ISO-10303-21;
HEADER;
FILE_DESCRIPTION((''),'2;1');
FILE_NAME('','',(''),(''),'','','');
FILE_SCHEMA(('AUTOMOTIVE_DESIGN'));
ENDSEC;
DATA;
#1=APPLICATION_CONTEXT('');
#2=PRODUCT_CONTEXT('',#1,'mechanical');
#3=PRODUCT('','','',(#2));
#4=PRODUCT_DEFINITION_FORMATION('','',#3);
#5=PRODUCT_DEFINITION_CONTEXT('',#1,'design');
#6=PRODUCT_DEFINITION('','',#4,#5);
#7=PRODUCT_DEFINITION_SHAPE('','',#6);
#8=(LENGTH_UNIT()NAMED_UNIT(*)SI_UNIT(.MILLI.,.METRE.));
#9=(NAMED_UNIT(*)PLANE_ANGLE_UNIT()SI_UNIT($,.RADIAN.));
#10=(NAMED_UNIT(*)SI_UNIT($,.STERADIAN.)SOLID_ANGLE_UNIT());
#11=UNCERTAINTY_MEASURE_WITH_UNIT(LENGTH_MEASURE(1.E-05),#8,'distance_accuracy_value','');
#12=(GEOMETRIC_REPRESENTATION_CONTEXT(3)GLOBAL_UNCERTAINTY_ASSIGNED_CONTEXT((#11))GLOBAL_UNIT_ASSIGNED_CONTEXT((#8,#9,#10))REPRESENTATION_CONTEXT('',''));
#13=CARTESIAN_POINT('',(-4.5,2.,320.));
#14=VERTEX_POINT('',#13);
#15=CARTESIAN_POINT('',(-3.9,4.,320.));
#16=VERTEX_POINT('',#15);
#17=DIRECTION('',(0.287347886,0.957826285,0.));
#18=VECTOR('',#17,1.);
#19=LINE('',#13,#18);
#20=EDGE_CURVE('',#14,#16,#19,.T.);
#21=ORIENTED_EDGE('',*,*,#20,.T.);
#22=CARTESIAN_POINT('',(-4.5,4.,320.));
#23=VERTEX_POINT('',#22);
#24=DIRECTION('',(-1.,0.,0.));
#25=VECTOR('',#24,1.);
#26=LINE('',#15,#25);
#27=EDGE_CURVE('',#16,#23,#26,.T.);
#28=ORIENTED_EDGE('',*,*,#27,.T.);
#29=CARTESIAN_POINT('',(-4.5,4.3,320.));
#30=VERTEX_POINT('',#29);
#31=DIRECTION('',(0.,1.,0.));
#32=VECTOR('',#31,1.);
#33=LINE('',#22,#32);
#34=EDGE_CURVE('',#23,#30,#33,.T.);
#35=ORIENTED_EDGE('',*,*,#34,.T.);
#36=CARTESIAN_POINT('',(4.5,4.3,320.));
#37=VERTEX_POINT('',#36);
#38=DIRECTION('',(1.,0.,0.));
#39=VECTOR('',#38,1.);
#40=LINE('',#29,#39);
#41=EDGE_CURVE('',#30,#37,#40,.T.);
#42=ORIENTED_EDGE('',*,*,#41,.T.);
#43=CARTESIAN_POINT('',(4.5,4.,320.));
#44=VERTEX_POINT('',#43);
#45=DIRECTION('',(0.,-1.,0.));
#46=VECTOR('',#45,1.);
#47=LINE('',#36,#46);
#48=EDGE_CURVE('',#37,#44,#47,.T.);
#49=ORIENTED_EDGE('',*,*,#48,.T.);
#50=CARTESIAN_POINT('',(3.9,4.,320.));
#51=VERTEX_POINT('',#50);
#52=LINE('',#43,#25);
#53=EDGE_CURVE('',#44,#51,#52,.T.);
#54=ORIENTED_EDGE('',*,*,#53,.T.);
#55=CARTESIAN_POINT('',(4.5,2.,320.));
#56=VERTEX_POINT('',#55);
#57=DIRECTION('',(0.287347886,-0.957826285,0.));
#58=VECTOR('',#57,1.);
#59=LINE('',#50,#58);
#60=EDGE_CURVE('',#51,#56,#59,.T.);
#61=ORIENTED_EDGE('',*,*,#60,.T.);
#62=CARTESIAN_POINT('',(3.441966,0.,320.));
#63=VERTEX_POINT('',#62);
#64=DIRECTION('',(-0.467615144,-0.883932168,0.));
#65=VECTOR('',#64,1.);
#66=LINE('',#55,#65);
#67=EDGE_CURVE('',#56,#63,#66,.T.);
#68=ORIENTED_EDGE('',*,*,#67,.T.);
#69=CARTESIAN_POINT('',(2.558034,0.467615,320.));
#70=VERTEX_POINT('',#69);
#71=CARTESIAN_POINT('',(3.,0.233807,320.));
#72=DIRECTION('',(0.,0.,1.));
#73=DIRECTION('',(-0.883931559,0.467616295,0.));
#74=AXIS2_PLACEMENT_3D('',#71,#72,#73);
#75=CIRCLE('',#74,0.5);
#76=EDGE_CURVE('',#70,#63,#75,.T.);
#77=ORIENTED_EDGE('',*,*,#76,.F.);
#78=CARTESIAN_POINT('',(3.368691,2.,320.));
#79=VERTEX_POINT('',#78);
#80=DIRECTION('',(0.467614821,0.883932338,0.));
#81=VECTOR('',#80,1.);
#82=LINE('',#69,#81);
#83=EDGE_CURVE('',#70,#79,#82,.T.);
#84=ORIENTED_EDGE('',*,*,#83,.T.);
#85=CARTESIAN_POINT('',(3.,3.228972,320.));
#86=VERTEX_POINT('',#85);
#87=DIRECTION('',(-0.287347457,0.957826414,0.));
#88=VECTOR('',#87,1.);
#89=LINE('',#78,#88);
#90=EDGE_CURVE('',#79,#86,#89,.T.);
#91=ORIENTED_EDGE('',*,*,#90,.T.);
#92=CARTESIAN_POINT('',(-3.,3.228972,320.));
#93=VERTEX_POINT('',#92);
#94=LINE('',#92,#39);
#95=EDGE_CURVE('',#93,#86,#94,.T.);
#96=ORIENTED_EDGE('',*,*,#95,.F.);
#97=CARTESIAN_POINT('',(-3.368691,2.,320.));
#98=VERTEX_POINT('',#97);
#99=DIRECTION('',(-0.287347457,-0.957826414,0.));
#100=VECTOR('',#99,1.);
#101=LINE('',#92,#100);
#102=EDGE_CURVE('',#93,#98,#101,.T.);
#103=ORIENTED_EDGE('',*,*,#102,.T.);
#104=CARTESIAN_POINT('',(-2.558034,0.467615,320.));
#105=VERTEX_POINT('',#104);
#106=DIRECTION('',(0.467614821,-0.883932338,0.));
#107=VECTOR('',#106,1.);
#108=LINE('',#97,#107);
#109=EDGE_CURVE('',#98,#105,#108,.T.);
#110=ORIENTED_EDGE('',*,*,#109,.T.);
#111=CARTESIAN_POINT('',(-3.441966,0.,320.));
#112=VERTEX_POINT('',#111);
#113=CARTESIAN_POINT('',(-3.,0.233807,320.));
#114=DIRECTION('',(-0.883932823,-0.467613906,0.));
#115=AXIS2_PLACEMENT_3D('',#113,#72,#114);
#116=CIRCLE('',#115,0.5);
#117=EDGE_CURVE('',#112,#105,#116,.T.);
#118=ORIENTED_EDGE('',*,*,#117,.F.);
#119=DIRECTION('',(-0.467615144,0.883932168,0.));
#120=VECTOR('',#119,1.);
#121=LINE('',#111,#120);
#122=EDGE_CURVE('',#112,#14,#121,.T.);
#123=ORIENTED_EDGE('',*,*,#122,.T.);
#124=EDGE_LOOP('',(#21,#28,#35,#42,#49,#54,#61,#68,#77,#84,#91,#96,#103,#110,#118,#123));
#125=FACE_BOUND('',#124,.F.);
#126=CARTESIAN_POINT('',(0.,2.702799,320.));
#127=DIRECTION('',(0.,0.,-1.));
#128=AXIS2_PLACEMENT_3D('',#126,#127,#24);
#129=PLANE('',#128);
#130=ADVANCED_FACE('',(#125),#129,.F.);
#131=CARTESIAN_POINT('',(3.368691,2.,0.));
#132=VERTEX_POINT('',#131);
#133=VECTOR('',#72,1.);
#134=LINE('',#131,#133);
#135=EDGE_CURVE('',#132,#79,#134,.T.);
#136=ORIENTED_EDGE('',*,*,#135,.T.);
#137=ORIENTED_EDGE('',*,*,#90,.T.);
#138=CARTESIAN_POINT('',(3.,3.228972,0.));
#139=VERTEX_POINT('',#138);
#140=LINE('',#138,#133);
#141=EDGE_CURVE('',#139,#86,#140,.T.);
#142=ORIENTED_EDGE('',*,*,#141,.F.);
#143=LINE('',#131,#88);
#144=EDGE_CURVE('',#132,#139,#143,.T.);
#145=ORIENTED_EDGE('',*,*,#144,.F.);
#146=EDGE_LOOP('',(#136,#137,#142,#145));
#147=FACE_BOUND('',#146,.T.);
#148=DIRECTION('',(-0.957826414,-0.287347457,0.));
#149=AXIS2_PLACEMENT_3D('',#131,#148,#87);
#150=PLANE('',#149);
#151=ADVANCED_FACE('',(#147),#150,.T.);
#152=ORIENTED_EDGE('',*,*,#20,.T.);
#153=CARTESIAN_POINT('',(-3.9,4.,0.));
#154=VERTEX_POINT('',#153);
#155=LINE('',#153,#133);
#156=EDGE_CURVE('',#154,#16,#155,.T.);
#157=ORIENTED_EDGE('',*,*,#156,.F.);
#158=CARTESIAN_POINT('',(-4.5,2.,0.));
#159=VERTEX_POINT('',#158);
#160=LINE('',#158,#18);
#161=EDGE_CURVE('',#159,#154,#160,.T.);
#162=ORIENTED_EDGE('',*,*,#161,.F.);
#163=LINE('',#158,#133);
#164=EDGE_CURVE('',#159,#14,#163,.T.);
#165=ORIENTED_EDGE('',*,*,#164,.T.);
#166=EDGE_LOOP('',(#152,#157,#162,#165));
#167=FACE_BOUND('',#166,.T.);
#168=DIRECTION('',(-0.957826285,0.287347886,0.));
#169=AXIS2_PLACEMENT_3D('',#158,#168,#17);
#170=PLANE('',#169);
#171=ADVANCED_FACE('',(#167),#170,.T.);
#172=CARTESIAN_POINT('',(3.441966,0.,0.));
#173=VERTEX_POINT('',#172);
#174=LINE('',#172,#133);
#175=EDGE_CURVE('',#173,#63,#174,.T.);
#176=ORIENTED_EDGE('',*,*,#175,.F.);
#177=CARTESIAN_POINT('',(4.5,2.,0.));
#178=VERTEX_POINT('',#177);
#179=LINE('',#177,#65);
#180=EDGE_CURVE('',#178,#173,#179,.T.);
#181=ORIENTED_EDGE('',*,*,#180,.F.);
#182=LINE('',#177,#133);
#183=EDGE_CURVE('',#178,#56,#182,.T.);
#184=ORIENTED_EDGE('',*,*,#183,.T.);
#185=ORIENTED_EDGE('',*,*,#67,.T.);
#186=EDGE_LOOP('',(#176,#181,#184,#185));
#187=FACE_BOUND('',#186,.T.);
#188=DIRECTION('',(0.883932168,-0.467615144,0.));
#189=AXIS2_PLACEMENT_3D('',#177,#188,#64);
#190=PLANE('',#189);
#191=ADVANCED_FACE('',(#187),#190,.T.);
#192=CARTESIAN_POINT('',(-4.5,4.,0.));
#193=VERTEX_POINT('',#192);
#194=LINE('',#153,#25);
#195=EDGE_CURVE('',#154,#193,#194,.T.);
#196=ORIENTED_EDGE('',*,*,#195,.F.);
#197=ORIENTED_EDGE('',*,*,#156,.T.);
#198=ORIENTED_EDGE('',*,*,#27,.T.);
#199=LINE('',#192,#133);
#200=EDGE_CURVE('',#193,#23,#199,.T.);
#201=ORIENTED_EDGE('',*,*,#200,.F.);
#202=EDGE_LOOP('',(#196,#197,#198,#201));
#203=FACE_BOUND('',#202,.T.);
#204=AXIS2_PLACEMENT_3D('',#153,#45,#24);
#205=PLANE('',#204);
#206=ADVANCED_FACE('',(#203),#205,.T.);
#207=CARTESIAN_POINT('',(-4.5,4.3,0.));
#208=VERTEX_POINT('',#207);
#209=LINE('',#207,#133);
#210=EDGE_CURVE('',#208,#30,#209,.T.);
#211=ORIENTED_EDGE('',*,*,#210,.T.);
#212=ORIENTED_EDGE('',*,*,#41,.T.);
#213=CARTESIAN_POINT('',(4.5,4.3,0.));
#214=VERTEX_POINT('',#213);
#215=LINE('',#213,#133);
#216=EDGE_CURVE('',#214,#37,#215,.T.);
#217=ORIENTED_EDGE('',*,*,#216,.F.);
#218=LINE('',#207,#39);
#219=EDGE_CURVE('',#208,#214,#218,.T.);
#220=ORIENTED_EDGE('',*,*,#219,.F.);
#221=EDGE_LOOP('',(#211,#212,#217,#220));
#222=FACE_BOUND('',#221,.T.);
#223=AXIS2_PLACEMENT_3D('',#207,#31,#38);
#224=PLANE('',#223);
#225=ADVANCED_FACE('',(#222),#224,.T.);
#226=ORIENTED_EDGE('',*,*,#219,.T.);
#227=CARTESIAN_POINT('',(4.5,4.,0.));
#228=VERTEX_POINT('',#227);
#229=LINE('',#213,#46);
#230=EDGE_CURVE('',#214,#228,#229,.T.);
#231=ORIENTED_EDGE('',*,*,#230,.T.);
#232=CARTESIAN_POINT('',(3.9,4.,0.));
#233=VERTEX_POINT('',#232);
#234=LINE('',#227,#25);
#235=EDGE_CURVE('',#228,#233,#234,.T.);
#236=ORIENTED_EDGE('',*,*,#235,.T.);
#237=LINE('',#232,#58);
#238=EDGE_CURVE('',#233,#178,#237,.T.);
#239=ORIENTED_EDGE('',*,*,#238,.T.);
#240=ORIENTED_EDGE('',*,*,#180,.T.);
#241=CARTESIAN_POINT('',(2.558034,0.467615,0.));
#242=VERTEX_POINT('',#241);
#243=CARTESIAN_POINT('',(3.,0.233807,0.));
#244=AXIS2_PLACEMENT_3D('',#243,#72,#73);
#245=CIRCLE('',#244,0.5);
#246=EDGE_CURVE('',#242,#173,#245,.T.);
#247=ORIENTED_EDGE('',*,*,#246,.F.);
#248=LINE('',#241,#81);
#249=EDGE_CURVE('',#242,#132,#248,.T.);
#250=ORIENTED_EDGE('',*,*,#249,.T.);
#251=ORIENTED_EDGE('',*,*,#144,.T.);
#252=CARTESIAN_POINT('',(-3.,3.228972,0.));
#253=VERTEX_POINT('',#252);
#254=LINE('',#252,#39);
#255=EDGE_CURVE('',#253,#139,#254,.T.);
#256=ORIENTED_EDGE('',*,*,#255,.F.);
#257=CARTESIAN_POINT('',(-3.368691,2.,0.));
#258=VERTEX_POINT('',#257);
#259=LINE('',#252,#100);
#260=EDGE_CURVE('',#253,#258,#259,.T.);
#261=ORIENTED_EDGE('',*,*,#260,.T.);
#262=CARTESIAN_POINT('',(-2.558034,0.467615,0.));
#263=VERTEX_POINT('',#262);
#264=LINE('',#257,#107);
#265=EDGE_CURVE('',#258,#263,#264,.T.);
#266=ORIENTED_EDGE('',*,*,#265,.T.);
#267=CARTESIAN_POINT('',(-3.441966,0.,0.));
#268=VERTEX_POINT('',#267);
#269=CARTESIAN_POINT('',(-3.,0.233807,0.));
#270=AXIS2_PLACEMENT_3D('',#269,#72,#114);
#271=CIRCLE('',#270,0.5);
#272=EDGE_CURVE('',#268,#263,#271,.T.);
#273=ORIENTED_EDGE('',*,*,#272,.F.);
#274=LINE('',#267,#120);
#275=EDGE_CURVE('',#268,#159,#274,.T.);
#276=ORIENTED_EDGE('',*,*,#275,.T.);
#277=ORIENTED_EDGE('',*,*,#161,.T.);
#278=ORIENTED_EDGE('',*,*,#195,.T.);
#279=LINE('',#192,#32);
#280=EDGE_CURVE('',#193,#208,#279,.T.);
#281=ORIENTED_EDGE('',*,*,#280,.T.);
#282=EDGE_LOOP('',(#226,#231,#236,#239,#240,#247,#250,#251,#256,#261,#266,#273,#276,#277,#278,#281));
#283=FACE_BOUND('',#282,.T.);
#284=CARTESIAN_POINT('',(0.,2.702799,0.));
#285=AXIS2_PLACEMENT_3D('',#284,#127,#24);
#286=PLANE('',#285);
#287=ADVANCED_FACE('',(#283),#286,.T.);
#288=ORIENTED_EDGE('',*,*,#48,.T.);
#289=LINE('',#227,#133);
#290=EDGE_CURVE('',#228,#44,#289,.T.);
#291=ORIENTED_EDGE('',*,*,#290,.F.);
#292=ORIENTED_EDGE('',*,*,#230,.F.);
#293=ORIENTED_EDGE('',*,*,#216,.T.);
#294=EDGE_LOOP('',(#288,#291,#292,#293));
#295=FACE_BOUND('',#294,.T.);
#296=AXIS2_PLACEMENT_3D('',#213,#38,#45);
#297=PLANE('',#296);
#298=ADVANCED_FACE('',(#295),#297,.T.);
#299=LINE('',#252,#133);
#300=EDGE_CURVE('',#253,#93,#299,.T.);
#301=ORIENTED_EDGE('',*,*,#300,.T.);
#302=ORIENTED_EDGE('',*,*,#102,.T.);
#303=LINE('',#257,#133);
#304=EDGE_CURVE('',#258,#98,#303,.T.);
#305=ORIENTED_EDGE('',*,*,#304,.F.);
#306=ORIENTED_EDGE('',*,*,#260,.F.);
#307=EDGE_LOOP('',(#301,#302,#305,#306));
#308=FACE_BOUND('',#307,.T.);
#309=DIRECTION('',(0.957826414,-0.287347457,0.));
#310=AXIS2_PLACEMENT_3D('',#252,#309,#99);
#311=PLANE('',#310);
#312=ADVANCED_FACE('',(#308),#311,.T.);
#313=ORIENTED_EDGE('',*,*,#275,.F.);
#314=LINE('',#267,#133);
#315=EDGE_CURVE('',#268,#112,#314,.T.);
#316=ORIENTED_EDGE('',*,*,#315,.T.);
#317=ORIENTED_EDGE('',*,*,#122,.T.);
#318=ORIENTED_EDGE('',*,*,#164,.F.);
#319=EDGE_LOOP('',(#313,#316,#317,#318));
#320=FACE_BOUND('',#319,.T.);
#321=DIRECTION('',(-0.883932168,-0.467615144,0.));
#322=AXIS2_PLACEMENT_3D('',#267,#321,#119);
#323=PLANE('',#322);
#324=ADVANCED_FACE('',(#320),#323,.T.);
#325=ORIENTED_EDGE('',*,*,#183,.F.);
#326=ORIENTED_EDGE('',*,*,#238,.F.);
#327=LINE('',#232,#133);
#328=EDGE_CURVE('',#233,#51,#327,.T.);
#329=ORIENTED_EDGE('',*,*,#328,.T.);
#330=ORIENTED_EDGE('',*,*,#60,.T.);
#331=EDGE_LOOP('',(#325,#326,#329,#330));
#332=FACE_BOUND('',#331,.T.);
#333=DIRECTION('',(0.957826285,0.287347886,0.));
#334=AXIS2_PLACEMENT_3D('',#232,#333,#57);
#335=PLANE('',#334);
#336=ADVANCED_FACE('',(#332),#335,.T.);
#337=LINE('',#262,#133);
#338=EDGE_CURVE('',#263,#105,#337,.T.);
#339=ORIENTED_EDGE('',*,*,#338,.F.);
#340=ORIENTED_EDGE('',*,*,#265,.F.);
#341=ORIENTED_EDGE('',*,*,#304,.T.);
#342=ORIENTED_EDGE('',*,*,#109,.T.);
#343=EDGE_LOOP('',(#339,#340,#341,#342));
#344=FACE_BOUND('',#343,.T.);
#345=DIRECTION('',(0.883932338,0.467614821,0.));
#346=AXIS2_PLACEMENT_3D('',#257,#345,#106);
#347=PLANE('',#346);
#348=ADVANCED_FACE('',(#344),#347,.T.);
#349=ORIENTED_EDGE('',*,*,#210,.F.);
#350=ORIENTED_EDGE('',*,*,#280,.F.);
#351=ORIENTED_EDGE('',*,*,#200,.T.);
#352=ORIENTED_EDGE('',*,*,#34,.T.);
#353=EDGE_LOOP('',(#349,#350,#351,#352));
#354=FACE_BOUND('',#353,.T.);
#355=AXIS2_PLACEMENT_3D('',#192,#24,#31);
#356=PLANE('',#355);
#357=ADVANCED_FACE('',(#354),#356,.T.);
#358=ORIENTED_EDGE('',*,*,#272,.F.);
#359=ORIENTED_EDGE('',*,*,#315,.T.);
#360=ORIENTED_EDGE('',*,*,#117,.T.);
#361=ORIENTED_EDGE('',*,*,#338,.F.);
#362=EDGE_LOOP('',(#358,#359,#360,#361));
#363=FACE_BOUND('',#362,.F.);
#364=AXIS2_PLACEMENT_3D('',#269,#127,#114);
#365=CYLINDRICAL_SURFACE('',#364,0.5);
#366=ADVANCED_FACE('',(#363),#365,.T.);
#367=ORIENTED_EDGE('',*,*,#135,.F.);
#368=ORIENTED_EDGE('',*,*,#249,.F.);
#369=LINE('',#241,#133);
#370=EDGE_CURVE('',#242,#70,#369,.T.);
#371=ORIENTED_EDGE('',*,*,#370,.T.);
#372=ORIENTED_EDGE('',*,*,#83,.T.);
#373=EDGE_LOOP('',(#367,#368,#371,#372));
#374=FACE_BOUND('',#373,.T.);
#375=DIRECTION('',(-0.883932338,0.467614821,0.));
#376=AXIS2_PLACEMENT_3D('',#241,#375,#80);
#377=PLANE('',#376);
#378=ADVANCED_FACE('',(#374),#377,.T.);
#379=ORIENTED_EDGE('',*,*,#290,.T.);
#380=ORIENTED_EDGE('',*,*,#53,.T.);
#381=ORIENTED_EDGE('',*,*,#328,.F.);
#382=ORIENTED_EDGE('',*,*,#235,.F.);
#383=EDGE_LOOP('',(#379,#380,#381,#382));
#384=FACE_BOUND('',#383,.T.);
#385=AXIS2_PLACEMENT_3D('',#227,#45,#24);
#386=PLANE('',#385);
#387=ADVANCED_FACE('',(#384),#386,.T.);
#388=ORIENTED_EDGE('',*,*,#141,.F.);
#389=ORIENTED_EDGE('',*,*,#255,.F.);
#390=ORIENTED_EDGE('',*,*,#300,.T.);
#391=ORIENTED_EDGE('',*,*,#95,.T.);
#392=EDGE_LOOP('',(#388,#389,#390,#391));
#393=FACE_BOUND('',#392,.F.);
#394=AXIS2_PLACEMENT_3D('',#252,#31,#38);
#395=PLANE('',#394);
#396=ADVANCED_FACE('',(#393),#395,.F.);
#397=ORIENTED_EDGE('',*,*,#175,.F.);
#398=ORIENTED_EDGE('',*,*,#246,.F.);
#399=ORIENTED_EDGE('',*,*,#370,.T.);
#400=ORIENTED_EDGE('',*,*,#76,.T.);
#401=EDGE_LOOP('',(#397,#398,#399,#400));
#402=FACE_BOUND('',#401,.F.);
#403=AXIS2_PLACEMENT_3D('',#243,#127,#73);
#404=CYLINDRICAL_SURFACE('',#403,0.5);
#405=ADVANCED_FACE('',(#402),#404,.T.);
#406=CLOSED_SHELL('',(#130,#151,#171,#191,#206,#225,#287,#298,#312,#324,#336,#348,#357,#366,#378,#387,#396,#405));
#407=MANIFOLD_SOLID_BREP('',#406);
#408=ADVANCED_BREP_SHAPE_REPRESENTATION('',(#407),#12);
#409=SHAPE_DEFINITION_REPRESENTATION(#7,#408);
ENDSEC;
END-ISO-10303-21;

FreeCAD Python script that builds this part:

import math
import FreeCAD as App
import Part
import Sketcher

V = App.Vector

doc = App.newDocument("Part")
body = doc.addObject("PartDesign::Body", "Body")

sketch1 = doc.addObject("Sketcher::SketchObject", "Sketch")
body.addObject(sketch1)
sketch1.AttachmentSupport = (doc.XY_Plane, [""])
sketch1.MapMode = "FlatFace"
sketch1.addGeometry(Part.LineSegment(V(4.5, 4.3, 0), V(-4.5, 4.3, 0)), False)
sketch1.addGeometry(Part.LineSegment(V(-4.5, 4.3, 0), V(-4.5, 4, 0)), False)
sketch1.addGeometry(Part.LineSegment(V(-4.5, 4, 0), V(-3.9, 4, 0)), False)
sketch1.addGeometry(Part.LineSegment(V(-3.9, 4, 0), V(-4.5, 2, 0)), False)
sketch1.addGeometry(Part.LineSegment(V(-4.5, 2, 0), V(-3.44, 0, 0)), False)
sketch1.addGeometry(Part.ArcOfCircle(Part.Circle(V(-3, 0.23, 0), V(0, 0, 1), 0.5), math.radians(-152), math.radians(28)), False)
sketch1.addGeometry(Part.LineSegment(V(-2.56, 0.47, 0), V(-3.37, 2, 0)), False)
sketch1.addGeometry(Part.LineSegment(V(-3.37, 2, 0), V(-3, 3.23, 0)), False)
sketch1.addGeometry(Part.LineSegment(V(-3, 3.23, 0), V(3, 3.23, 0)), False)
sketch1.addGeometry(Part.LineSegment(V(3, 3.23, 0), V(3.37, 2, 0)), False)
sketch1.addGeometry(Part.LineSegment(V(3.37, 2, 0), V(2.56, 0.47, 0)), False)
sketch1.addGeometry(Part.ArcOfCircle(Part.Circle(V(3, 0.23, 0), V(0, 0, 1), 0.5), math.radians(152), math.radians(332)), False)
sketch1.addGeometry(Part.LineSegment(V(3.44, 0, 0), V(4.5, 2, 0)), False)
sketch1.addGeometry(Part.LineSegment(V(4.5, 2, 0), V(3.9, 4, 0)), False)
sketch1.addGeometry(Part.LineSegment(V(3.9, 4, 0), V(4.5, 4, 0)), False)
sketch1.addGeometry(Part.LineSegment(V(4.5, 4, 0), V(4.5, 4.3, 0)), False)
sketch1.addConstraint(Sketcher.Constraint("Coincident", 0, 2, 1, 1))
sketch1.addConstraint(Sketcher.Constraint("Coincident", 1, 2, 2, 1))
sketch1.addConstraint(Sketcher.Constraint("Coincident", 2, 2, 3, 1))
sketch1.addConstraint(Sketcher.Constraint("Coincident", 3, 2, 4, 1))
sketch1.addConstraint(Sketcher.Constraint("Tangent", 4, 2, 5, 1))
sketch1.addConstraint(Sketcher.Constraint("Tangent", 5, 2, 6, 1))
sketch1.addConstraint(Sketcher.Constraint("Coincident", 6, 2, 7, 1))
sketch1.addConstraint(Sketcher.Constraint("Coincident", 7, 2, 8, 1))
sketch1.addConstraint(Sketcher.Constraint("Coincident", 8, 2, 9, 1))
sketch1.addConstraint(Sketcher.Constraint("Coincident", 9, 2, 10, 1))
sketch1.addConstraint(Sketcher.Constraint("Tangent", 10, 2, 11, 1))
sketch1.addConstraint(Sketcher.Constraint("Tangent", 11, 2, 12, 1))
sketch1.addConstraint(Sketcher.Constraint("Coincident", 12, 2, 13, 1))
sketch1.addConstraint(Sketcher.Constraint("Coincident", 13, 2, 14, 1))
sketch1.addConstraint(Sketcher.Constraint("Coincident", 14, 2, 15, 1))
sketch1.addConstraint(Sketcher.Constraint("Coincident", 15, 2, 0, 1))
sketch1.addConstraint(Sketcher.Constraint("Horizontal", 0))
sketch1.addConstraint(Sketcher.Constraint("Vertical", 1))
sketch1.addConstraint(Sketcher.Constraint("Horizontal", 2))
sketch1.addConstraint(Sketcher.Constraint("Horizontal", 8))
sketch1.addConstraint(Sketcher.Constraint("Horizontal", 14))
sketch1.addConstraint(Sketcher.Constraint("Vertical", 15))
sketch1.addConstraint(Sketcher.Constraint("Equal", 5, 11))
sketch1.addConstraint(Sketcher.Constraint("Symmetric", 4, 2, 11, 2, -1, 1))
sketch1.addConstraint(Sketcher.Constraint("Symmetric", 5, 3, 11, 3, -2))
sketch1.addConstraint(Sketcher.Constraint("Symmetric", 6, 2, 9, 2, -2))
sketch1.addConstraint(Sketcher.Constraint("Symmetric", 2, 2, 13, 2, -2))
sketch1.addConstraint(Sketcher.Constraint("Parallel", 4, 6))
sketch1.addConstraint(Sketcher.Constraint("Parallel", 3, 7))
sketch1.addConstraint(Sketcher.Constraint("Parallel", 9, 13))
sketch1.addConstraint(Sketcher.Constraint("Horizontal", 3, 2, 6, 2))
sketch1.addConstraint(Sketcher.Constraint("Horizontal", 9, 2, 12, 2))
sketch1.addConstraint(Sketcher.Constraint("Vertical", 1, 2, 3, 2))
sketch1.addConstraint(Sketcher.Constraint("Vertical", 5, 3, 7, 2))
sketch1.addConstraint(Sketcher.Constraint("Vertical", 12, 2, 14, 2))
sketch1.addConstraint(Sketcher.Constraint("Radius", 5, 0.5))
sketch1.addConstraint(Sketcher.Constraint("DistanceX", 0, 2, 0, 1, 9.0))
sketch1.addConstraint(Sketcher.Constraint("DistanceX", 8, 1, 8, 2, 6.0))
sketch1.addConstraint(Sketcher.Constraint("DistanceX", 2, 1, 2, 2, 0.6))
sketch1.addConstraint(Sketcher.Constraint("DistanceY", 1, 2, 1, 1, 0.3))
sketch1.addConstraint(Sketcher.Constraint("DistanceY", -1, 1, 1, 2, 4.0))
sketch1.addConstraint(Sketcher.Constraint("DistanceY", -1, 1, 3, 2, 2.0))
pad1 = doc.addObject("PartDesign::Pad", "Pad")
body.addObject(pad1)
pad1.Profile = sketch1
pad1.Length = 320

doc.recompute()
